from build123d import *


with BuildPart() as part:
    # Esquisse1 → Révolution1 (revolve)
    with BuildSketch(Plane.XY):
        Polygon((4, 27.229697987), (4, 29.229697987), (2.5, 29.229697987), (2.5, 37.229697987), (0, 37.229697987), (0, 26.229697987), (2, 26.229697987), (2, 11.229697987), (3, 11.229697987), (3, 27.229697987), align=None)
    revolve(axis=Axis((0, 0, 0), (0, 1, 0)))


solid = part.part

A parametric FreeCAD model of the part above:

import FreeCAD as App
import Part
import Sketcher

V = App.Vector
Q = App.Units.Quantity

doc = App.newDocument("Part")
body = doc.addObject("PartDesign::Body", "Body")

# Sketch on XY plane
sketch1 = body.newObject("Sketcher::SketchObject", "Sketch")
sketch1.AttachmentSupport = (doc.getObject("XY_Plane"), [""])
sketch1.MapMode = "FlatFace"
sketch1.addGeometry(Part.LineSegment(V(4, 27.2, 0), V(4, 29.2, 0)), False)
sketch1.addGeometry(Part.LineSegment(V(4, 29.2, 0), V(2.5, 29.2, 0)), False)
sketch1.addGeometry(Part.LineSegment(V(2.5, 29.2, 0), V(2.5, 37.2, 0)), False)
sketch1.addGeometry(Part.LineSegment(V(2.5, 37.2, 0), V(0, 37.2, 0)), False)
sketch1.addGeometry(Part.LineSegment(V(0, 37.2, 0), V(0, 26.2, 0)), False)
sketch1.addGeometry(Part.LineSegment(V(0, 26.2, 0), V(2, 26.2, 0)), False)
sketch1.addGeometry(Part.LineSegment(V(2, 26.2, 0), V(2, 11.2, 0)), False)
sketch1.addGeometry(Part.LineSegment(V(2, 11.2, 0), V(3, 11.2, 0)), False)
sketch1.addGeometry(Part.LineSegment(V(3, 11.2, 0), V(3, 27.2, 0)), False)
sketch1.addGeometry(Part.LineSegment(V(3, 27.2, 0), V(4, 27.2, 0)), False)
sketch1.addConstraint(Sketcher.Constraint("Coincident", 0, 2, 1, 1))
sketch1.addConstraint(Sketcher.Constraint("Coincident", 1, 2, 2, 1))
sketch1.addConstraint(Sketcher.Constraint("Coincident", 2, 2, 3, 1))
sketch1.addConstraint(Sketcher.Constraint("Coincident", 3, 2, 4, 1))
sketch1.addConstraint(Sketcher.Constraint("Coincident", 4, 2, 5, 1))
sketch1.addConstraint(Sketcher.Constraint("Coincident", 5, 2, 6, 1))
sketch1.addConstraint(Sketcher.Constraint("Coincident", 6, 2, 7, 1))
sketch1.addConstraint(Sketcher.Constraint("Coincident", 7, 2, 8, 1))
sketch1.addConstraint(Sketcher.Constraint("Coincident", 8, 2, 9, 1))
sketch1.addConstraint(Sketcher.Constraint("Coincident", 9, 2, 0, 1))
sketch1.addConstraint(Sketcher.Constraint("Vertical", 0))
sketch1.addConstraint(Sketcher.Constraint("Horizontal", 1))
sketch1.addConstraint(Sketcher.Constraint("Vertical", 2))
sketch1.addConstraint(Sketcher.Constraint("Horizontal", 3))
sketch1.addConstraint(Sketcher.Constraint("Vertical", 4))
sketch1.addConstraint(Sketcher.Constraint("Horizontal", 5))
sketch1.addConstraint(Sketcher.Constraint("Vertical", 6))
sketch1.addConstraint(Sketcher.Constraint("Horizontal", 7))
sketch1.addConstraint(Sketcher.Constraint("Vertical", 8))
sketch1.addConstraint(Sketcher.Constraint("Horizontal", 9))
sketch1.addConstraint(Sketcher.Constraint("PointOnObject", 3, 2, -2))
sketch1.addConstraint(Sketcher.Constraint("Equal", 7, 9))
sketch1.addConstraint(Sketcher.Constraint("Equal", 5, 0))
sketch1.addConstraint(Sketcher.Constraint("DistanceX", 5, 1, 5, 2, Q("2 mm")))
sketch1.addConstraint(Sketcher.Constraint("DistanceX", 7, 1, 7, 2, Q("1 mm")))
sketch1.addConstraint(Sketcher.Constraint("DistanceY", 2, 1, 2, 2, Q("8 mm")))
sketch1.addConstraint(Sketcher.Constraint("DistanceY", 4, 2, 4, 1, Q("11 mm")))
sketch1.addConstraint(Sketcher.Constraint("DistanceY", 6, 2, 6, 1, Q("15 mm")))
sketch1.addConstraint(Sketcher.Constraint("DistanceX", 1, 2, 1, 1, Q("1.5 mm")))
sketch1.addConstraint(Sketcher.Constraint("DistanceY", -1, 1, 0, 2, Q("29.229698 mm")))
revolution = body.newObject("PartDesign::Revolution", "Revolution")
revolution.Profile = sketch1
revolution.ReferenceAxis = (sketch1, ["V_Axis"])
revolution.Angle = 360

doc.recompute()
